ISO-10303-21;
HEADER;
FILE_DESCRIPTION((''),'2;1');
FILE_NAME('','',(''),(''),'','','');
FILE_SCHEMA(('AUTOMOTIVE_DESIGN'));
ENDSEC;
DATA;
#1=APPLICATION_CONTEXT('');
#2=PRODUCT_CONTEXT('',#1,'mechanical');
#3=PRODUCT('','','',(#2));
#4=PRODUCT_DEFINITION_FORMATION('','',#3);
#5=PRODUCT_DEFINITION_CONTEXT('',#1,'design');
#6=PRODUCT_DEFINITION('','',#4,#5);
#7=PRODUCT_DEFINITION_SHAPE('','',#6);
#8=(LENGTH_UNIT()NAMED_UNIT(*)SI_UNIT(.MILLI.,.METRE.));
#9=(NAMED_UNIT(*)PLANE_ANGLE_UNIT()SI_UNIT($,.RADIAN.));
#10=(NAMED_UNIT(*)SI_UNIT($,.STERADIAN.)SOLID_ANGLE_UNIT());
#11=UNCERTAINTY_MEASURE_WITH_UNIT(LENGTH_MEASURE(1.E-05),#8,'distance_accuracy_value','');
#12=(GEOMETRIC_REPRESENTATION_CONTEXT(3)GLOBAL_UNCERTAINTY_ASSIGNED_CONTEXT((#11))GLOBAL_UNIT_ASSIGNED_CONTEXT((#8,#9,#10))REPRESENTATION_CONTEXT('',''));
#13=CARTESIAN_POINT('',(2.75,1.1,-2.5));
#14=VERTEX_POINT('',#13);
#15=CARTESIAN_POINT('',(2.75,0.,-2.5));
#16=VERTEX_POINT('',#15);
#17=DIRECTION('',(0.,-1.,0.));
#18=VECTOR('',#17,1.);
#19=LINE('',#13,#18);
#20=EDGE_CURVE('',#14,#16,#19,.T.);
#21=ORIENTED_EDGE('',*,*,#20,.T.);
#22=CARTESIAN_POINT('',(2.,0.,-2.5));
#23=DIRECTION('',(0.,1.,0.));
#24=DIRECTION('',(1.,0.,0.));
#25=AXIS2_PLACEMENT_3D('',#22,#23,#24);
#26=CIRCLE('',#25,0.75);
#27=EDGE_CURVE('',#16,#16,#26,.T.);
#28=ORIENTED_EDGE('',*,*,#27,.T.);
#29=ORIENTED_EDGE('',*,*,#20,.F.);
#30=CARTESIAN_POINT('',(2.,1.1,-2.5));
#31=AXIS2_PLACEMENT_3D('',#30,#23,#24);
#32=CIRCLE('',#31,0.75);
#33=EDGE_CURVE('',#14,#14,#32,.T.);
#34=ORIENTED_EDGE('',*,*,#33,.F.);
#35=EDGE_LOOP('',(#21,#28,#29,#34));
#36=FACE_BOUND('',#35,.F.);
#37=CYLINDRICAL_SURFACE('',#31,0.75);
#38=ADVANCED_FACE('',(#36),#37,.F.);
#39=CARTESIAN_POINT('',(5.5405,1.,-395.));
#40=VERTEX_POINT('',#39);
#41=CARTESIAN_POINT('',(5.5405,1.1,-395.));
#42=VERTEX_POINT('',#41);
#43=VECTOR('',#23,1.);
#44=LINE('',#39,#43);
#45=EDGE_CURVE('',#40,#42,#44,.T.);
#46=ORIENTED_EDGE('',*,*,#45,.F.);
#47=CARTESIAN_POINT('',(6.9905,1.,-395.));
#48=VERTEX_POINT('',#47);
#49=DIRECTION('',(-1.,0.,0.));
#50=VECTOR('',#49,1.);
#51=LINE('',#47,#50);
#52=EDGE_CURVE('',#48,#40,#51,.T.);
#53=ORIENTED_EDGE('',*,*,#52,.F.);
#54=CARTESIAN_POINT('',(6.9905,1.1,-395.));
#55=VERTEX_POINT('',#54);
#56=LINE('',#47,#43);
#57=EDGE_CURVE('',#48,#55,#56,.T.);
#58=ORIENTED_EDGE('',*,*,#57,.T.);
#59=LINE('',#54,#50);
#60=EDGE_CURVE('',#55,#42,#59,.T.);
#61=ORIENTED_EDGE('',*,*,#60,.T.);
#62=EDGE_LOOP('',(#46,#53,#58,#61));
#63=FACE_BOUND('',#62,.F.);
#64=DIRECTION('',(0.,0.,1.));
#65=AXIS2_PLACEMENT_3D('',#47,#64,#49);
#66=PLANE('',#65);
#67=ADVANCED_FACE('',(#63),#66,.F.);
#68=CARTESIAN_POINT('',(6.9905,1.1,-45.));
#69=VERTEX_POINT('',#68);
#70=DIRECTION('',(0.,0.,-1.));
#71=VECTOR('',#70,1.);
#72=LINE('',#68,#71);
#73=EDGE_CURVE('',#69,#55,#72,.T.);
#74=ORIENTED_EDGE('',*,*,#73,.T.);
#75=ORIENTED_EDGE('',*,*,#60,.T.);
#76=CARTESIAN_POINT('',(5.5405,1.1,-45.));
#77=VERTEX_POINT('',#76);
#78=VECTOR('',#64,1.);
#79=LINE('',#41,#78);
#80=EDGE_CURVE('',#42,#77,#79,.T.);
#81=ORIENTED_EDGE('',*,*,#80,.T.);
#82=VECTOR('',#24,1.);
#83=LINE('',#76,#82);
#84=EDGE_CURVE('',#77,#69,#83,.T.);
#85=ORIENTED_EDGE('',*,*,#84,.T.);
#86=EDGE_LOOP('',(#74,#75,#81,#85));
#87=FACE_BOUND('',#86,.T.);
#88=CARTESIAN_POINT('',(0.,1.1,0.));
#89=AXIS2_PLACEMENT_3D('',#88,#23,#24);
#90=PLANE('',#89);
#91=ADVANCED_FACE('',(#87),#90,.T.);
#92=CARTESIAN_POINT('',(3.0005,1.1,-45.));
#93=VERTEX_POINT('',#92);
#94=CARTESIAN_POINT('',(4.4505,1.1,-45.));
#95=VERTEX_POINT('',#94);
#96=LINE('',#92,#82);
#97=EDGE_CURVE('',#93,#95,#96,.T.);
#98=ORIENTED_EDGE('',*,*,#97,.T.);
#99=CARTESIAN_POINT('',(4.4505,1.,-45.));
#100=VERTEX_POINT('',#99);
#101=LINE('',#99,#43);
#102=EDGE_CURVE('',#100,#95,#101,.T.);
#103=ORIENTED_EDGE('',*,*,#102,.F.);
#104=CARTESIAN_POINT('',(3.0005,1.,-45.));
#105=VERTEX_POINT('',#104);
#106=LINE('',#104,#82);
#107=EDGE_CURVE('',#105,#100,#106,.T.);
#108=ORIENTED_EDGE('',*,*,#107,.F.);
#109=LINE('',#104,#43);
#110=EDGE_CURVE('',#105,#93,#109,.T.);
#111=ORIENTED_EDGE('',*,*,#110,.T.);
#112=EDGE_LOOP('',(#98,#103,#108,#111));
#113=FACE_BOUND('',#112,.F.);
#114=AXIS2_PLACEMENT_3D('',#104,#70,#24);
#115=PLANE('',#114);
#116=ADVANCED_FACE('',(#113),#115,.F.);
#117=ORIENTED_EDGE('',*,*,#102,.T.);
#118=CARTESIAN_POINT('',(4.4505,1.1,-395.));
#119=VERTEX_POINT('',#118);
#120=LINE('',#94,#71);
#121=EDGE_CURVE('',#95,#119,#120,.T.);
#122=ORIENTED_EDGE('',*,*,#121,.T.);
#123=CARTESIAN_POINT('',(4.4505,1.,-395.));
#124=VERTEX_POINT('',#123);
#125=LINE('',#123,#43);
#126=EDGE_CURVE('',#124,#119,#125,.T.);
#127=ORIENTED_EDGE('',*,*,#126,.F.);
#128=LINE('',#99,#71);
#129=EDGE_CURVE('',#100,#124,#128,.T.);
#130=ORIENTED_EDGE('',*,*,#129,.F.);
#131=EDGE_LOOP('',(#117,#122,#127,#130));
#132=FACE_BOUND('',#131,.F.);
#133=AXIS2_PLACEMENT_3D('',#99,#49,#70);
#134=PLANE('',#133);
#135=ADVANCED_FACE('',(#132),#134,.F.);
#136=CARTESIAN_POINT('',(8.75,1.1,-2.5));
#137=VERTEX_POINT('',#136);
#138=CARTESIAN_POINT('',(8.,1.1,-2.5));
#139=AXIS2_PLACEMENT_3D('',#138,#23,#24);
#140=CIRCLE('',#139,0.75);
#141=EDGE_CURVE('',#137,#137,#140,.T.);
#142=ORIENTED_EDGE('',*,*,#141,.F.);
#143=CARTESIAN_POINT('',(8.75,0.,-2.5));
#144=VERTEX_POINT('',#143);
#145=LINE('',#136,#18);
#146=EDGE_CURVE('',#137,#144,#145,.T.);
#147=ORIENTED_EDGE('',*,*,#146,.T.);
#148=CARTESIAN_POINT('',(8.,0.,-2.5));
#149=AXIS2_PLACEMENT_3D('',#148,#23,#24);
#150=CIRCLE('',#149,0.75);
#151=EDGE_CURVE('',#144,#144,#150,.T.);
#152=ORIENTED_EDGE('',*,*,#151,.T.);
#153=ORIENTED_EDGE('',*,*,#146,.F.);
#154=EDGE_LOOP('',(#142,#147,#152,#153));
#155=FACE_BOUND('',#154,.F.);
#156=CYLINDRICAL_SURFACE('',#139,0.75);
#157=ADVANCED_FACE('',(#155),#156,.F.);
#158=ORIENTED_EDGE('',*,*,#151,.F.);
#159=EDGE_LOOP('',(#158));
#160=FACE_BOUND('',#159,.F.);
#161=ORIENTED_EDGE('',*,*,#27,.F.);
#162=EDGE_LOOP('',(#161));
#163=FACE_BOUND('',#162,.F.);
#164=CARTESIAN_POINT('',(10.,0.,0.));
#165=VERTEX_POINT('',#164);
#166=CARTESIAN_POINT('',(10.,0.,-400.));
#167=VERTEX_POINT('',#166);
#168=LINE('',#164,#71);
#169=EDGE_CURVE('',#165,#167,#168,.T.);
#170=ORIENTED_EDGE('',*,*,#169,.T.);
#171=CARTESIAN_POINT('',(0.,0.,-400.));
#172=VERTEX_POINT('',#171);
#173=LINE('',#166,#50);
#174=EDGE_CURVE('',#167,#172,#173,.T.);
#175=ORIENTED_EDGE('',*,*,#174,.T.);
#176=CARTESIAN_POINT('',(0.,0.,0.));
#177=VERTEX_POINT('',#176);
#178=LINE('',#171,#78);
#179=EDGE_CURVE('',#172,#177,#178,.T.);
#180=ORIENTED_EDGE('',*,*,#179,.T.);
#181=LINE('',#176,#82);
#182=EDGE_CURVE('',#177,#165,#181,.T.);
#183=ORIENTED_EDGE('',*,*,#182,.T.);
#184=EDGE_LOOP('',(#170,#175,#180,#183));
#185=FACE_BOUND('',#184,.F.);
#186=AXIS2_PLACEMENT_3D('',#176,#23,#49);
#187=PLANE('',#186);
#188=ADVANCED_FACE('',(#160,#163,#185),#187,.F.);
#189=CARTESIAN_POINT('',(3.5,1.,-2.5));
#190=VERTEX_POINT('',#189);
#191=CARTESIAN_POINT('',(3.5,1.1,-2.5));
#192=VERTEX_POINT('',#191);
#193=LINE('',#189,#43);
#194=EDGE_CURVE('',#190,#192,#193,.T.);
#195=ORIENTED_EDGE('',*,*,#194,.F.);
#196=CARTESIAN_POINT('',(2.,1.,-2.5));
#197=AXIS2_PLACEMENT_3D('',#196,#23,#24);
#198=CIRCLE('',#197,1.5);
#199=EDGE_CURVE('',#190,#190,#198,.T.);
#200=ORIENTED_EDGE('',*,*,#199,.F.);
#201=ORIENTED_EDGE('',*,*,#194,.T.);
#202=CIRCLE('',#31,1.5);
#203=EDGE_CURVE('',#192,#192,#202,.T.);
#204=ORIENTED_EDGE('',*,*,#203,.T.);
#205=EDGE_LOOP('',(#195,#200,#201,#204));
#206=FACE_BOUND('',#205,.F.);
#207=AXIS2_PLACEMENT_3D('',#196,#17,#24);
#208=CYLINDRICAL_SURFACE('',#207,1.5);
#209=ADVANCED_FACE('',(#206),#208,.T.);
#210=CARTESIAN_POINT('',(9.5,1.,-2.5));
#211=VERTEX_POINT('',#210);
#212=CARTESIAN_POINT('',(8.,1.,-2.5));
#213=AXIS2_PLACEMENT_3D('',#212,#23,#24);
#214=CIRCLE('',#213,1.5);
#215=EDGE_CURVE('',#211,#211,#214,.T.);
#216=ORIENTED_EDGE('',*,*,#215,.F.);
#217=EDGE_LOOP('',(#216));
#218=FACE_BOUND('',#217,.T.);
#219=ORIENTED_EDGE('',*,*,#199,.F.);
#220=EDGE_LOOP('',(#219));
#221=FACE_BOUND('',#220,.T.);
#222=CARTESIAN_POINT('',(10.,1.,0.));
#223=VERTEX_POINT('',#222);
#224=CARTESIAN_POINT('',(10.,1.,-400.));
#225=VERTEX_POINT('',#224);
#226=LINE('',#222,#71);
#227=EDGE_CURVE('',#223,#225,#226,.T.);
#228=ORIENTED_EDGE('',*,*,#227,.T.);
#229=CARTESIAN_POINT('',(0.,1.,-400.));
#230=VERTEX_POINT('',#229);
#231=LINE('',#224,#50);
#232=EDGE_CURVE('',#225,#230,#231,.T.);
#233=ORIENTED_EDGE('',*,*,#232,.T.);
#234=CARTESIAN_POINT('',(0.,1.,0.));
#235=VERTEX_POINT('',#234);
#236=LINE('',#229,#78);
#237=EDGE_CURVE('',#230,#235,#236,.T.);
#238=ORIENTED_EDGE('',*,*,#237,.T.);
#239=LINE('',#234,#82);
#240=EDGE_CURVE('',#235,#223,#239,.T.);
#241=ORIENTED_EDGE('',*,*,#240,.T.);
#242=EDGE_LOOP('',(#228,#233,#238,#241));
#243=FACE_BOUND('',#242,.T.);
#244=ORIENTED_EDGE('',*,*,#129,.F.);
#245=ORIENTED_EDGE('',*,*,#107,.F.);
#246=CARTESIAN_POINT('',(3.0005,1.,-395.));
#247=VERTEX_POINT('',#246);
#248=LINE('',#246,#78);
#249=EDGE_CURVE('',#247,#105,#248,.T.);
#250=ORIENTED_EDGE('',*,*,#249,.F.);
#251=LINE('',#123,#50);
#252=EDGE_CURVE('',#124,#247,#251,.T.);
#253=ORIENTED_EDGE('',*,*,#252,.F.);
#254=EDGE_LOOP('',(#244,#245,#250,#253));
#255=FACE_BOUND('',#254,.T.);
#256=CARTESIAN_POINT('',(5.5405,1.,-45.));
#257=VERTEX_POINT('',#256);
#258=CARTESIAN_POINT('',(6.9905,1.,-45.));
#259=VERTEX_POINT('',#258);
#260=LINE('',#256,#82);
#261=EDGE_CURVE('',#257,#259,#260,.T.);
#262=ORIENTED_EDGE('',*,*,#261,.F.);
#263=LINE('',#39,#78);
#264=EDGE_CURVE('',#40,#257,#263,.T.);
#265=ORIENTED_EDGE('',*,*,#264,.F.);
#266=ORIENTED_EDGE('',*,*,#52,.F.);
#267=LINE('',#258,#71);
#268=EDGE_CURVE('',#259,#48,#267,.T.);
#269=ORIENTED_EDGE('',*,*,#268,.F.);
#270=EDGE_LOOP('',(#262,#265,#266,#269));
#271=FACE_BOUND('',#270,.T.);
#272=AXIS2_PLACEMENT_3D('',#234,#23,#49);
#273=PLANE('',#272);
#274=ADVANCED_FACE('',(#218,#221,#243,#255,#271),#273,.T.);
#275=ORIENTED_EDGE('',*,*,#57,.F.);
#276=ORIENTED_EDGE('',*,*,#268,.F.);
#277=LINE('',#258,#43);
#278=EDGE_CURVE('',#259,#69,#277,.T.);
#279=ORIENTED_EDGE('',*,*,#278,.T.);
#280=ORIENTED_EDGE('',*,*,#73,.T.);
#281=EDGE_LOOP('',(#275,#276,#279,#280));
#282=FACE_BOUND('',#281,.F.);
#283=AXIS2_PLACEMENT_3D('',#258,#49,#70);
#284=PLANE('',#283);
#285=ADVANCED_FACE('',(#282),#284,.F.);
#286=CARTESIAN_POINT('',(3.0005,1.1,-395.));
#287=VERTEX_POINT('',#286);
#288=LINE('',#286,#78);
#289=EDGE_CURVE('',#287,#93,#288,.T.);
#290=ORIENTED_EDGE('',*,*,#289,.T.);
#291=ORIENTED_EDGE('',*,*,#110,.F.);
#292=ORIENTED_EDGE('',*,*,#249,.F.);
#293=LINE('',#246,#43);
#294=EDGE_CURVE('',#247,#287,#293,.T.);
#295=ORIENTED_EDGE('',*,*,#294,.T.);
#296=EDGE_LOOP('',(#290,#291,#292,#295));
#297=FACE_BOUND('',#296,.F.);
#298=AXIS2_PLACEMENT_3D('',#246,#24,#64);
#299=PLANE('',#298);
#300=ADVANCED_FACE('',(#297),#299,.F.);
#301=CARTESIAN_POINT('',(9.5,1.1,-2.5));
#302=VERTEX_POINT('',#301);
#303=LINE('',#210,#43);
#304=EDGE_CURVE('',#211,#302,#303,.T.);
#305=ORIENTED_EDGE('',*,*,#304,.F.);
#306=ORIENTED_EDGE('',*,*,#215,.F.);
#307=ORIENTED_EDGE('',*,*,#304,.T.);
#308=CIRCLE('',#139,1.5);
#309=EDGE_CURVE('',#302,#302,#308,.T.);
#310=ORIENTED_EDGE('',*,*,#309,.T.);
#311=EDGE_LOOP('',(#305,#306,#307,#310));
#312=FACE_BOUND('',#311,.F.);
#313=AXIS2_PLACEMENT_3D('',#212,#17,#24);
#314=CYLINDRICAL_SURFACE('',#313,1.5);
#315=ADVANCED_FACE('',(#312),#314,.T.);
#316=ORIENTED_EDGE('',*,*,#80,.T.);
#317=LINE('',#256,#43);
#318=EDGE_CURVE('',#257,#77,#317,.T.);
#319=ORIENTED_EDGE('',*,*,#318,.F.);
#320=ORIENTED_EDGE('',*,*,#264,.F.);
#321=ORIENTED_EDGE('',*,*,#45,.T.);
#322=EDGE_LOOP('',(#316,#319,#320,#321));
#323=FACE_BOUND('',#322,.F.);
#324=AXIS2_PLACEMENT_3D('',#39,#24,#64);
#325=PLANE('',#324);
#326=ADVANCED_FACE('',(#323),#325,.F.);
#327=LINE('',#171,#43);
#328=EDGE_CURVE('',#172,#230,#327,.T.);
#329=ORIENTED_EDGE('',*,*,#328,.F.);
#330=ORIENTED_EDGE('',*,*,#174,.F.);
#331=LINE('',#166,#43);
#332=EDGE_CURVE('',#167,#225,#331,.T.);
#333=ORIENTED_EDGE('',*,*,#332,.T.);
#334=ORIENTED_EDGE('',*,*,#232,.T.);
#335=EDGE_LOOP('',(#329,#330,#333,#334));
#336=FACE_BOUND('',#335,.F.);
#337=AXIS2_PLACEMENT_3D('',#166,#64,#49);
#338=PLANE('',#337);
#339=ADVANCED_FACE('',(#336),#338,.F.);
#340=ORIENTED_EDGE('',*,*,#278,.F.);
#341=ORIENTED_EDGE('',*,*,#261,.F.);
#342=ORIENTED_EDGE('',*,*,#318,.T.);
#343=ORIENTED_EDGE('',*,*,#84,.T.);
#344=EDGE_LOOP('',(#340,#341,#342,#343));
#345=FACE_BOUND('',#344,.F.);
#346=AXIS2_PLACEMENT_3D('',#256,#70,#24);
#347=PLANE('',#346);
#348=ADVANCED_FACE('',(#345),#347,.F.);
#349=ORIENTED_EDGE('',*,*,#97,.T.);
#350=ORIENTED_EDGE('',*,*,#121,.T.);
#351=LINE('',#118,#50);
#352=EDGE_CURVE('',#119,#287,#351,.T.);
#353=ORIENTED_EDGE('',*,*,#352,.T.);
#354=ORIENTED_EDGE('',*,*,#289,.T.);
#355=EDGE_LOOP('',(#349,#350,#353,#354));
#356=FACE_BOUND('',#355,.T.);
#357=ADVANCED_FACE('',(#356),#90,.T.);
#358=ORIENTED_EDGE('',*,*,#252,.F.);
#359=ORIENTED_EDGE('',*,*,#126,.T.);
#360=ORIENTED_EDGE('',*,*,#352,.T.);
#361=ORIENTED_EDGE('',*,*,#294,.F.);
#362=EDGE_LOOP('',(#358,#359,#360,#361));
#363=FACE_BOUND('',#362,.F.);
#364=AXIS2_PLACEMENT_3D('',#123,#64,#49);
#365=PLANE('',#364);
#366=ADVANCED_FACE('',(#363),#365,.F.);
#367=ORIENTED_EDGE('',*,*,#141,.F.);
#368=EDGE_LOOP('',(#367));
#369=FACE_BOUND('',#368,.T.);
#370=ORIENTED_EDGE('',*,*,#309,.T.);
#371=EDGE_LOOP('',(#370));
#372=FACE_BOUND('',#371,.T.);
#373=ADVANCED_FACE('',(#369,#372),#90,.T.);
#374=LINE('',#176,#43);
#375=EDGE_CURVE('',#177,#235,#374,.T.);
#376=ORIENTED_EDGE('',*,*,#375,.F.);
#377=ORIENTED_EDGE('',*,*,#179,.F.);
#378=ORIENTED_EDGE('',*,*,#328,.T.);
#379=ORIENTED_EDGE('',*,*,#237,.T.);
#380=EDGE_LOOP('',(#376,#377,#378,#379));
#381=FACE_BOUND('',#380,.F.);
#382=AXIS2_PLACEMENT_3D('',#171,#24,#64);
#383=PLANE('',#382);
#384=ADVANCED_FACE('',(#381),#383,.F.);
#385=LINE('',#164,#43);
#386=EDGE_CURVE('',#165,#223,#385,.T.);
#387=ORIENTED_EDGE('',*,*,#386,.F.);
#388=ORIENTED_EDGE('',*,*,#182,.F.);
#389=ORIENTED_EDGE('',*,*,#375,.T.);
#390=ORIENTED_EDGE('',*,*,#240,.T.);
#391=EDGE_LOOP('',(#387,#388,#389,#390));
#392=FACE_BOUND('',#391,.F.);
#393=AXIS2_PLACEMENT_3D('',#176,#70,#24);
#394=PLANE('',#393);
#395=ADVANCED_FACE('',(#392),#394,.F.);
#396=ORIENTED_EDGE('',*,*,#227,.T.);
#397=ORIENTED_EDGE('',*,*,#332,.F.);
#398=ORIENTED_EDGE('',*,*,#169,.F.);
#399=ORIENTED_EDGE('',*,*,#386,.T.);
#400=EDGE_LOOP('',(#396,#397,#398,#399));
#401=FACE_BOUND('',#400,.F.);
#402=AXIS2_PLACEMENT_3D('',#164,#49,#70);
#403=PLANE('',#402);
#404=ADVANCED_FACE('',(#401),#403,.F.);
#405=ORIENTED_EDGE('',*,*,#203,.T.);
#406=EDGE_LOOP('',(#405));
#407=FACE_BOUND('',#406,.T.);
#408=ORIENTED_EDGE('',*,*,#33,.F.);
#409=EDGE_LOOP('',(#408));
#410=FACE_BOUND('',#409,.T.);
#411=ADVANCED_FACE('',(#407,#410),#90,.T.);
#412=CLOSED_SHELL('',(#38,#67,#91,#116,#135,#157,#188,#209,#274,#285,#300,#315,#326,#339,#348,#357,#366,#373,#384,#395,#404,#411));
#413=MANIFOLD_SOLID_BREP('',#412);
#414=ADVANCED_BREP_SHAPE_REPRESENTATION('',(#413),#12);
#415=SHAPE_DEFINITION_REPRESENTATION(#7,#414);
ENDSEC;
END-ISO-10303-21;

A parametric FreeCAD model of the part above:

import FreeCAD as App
import Part
import Sketcher
Q = App.Units.Quantity

doc = App.newDocument("Part")
body = doc.addObject("PartDesign::Body", "Body")

# Sketch on XZ plane
sketch1 = body.newObject("Sketcher::SketchObject", "Sketch")
sketch1.AttachmentSupport = (doc.getObject("XZ_Plane"), [""])
sketch1.MapMode = "FlatFace"
sketch1.addGeometry([
    Part.LineSegment(App.Vector(0, -400, 0), App.Vector(0, 0, 0)),
    Part.LineSegment(App.Vector(0, 0, 0), App.Vector(10, 0, 0)),
    Part.LineSegment(App.Vector(10, 0, 0), App.Vector(10, -400, 0)),
    Part.LineSegment(App.Vector(10, -400, 0), App.Vector(0, -400, 0)),
], False)
sketch1.addConstraint([
    Sketcher.Constraint("Coincident", 0, 2, 1, 1),
    Sketcher.Constraint("Coincident", 1, 2, 2, 1),
    Sketcher.Constraint("Coincident", 2, 2, 3, 1),
    Sketcher.Constraint("Coincident", 3, 2, 0, 1),
    Sketcher.Constraint("Vertical", 0),
    Sketcher.Constraint("Horizontal", 1),
    Sketcher.Constraint("Vertical", 2),
    Sketcher.Constraint("Horizontal", 3),
    Sketcher.Constraint("Coincident", 0, 2, -1, 1),
    Sketcher.Constraint("DistanceX", 1, 1, 1, 2, Q("10 mm")),
    Sketcher.Constraint("DistanceY", 0, 1, 0, 2, Q("400 mm")),
])
pad1 = body.newObject("PartDesign::Pad", "Pad")
pad1.Profile = sketch1
pad1.Length = 1
pad1.Reversed = True

# Sketch on XZ plane
sketch2 = body.newObject("Sketcher::SketchObject", "Sketch001")
sketch2.AttachmentSupport = (doc.getObject("XZ_Plane"), [""])
sketch2.MapMode = "FlatFace"
sketch2.AttachmentOffset = App.Placement(App.Vector(0, 0, -1), App.Rotation())
sketch2.addGeometry([
    Part.Circle(App.Vector(2, -2.5, 0), App.Vector(0, 0, 1), 1.5),
    Part.Circle(App.Vector(8, -2.5, 0), App.Vector(0, 0, 1), 1.5),
], False)
sketch2.addConstraint([
    Sketcher.Constraint("Equal", 0, 1),
    Sketcher.Constraint("Horizontal", 0, 3, 1, 3),
    Sketcher.Constraint("Diameter", 0, Q("3 mm")),
    Sketcher.Constraint("DistanceX", -1, 1, 0, 3, Q("2 mm")),
    Sketcher.Constraint("DistanceY", 0, 3, -1, 1, Q("2.5 mm")),
    Sketcher.Constraint("DistanceX", -1, 1, 1, 3, Q("8 mm")),
])
pad2 = body.newObject("PartDesign::Pad", "Pad001")
pad2.Profile = sketch2
pad2.Length = 0.1
pad2.Reversed = True

# Sketch on XZ plane
sketch3 = body.newObject("Sketcher::SketchObject", "Sketch002")
sketch3.AttachmentSupport = (doc.getObject("XZ_Plane"), [""])
sketch3.MapMode = "FlatFace"
sketch3.AttachmentOffset = App.Placement(App.Vector(0, 0, -1.1), App.Rotation())
sketch3.addGeometry([
    Part.Circle(App.Vector(2, -2.5, 0), App.Vector(0, 0, 1), 0.75),
    Part.Circle(App.Vector(8, -2.5, 0), App.Vector(0, 0, 1), 0.75),
], False)
sketch3.addConstraint([
    Sketcher.Constraint("Equal", 0, 1),
    Sketcher.Constraint("Horizontal", 0, 3, 1, 3),
    Sketcher.Constraint("Diameter", 0, Q("1.5 mm")),
    Sketcher.Constraint("DistanceX", -1, 1, 0, 3, Q("2 mm")),
    Sketcher.Constraint("DistanceX", -1, 1, 1, 3, Q("8 mm")),
    Sketcher.Constraint("DistanceY", 0, 3, -1, 1, Q("2.5 mm")),
])
pocket1 = body.newObject("PartDesign::Pocket", "Pocket")
pocket1.Profile = sketch3
pocket1.Length = 3.85
pocket1.Reversed = True

# Sketch on XZ plane
sketch4 = body.newObject("Sketcher::SketchObject", "Sketch003")
sketch4.AttachmentSupport = (doc.getObject("XZ_Plane"), [""])
sketch4.MapMode = "FlatFace"
sketch4.AttachmentOffset = App.Placement(App.Vector(0, 0, -1), App.Rotation())
sketch4.addGeometry([
    Part.LineSegment(App.Vector(3.0005, -395, 0), App.Vector(3.0005, -45, 0)),  # 0
    Part.LineSegment(App.Vector(3.0005, -45, 0), App.Vector(4.4505, -45, 0)),  # 1
    Part.LineSegment(App.Vector(4.4505, -45, 0), App.Vector(4.4505, -395, 0)),  # 2
    Part.LineSegment(App.Vector(4.4505, -395, 0), App.Vector(3.0005, -395, 0)),  # 3
    Part.LineSegment(App.Vector(5.5405, -395, 0), App.Vector(5.5405, -45, 0)),  # 4
    Part.LineSegment(App.Vector(5.5405, -45, 0), App.Vector(6.9905, -45, 0)),  # 5
    Part.LineSegment(App.Vector(6.9905, -45, 0), App.Vector(6.9905, -395, 0)),  # 6
    Part.LineSegment(App.Vector(6.9905, -395, 0), App.Vector(5.5405, -395, 0)),  # 7
], False)
sketch4.addConstraint([
    Sketcher.Constraint("Coincident", 0, 2, 1, 1),
    Sketcher.Constraint("Coincident", 1, 2, 2, 1),
    Sketcher.Constraint("Coincident", 2, 2, 3, 1),
    Sketcher.Constraint("Coincident", 3, 2, 0, 1),
    Sketcher.Constraint("Coincident", 4, 2, 5, 1),
    Sketcher.Constraint("Coincident", 5, 2, 6, 1),
    Sketcher.Constraint("Coincident", 6, 2, 7, 1),
    Sketcher.Constraint("Coincident", 7, 2, 4, 1),
    Sketcher.Constraint("Vertical", 0),
    Sketcher.Constraint("Horizontal", 1),
    Sketcher.Constraint("Vertical", 2),
    Sketcher.Constraint("Horizontal", 3),
    Sketcher.Constraint("Vertical", 4),
    Sketcher.Constraint("Horizontal", 5),
    Sketcher.Constraint("Vertical", 6),
    Sketcher.Constraint("Horizontal", 7),
    Sketcher.Constraint("Horizontal", 1, 2, 4, 2),
    Sketcher.Constraint("Horizontal", 3, 2, 6, 2),
    Sketcher.Constraint("Equal", 3, 5),
    Sketcher.Constraint("DistanceY", 0, 1, 0, 2, Q("350 mm")),
    Sketcher.Constraint("DistanceY", 0, 2, -1, 1, Q("45 mm")),
    Sketcher.Constraint("DistanceX", 1, 1, 1, 2, Q("1.45 mm")),
    Sketcher.Constraint("DistanceX", 1, 2, 4, 2, Q("1.09 mm")),
    Sketcher.Constraint("DistanceX", -1, 1, 0, 2, Q("3.0005 mm")),
])
pad3 = body.newObject("PartDesign::Pad", "Pad002")
pad3.Profile = sketch4
pad3.Length = 0.1
pad3.Reversed = True

doc.recompute()
